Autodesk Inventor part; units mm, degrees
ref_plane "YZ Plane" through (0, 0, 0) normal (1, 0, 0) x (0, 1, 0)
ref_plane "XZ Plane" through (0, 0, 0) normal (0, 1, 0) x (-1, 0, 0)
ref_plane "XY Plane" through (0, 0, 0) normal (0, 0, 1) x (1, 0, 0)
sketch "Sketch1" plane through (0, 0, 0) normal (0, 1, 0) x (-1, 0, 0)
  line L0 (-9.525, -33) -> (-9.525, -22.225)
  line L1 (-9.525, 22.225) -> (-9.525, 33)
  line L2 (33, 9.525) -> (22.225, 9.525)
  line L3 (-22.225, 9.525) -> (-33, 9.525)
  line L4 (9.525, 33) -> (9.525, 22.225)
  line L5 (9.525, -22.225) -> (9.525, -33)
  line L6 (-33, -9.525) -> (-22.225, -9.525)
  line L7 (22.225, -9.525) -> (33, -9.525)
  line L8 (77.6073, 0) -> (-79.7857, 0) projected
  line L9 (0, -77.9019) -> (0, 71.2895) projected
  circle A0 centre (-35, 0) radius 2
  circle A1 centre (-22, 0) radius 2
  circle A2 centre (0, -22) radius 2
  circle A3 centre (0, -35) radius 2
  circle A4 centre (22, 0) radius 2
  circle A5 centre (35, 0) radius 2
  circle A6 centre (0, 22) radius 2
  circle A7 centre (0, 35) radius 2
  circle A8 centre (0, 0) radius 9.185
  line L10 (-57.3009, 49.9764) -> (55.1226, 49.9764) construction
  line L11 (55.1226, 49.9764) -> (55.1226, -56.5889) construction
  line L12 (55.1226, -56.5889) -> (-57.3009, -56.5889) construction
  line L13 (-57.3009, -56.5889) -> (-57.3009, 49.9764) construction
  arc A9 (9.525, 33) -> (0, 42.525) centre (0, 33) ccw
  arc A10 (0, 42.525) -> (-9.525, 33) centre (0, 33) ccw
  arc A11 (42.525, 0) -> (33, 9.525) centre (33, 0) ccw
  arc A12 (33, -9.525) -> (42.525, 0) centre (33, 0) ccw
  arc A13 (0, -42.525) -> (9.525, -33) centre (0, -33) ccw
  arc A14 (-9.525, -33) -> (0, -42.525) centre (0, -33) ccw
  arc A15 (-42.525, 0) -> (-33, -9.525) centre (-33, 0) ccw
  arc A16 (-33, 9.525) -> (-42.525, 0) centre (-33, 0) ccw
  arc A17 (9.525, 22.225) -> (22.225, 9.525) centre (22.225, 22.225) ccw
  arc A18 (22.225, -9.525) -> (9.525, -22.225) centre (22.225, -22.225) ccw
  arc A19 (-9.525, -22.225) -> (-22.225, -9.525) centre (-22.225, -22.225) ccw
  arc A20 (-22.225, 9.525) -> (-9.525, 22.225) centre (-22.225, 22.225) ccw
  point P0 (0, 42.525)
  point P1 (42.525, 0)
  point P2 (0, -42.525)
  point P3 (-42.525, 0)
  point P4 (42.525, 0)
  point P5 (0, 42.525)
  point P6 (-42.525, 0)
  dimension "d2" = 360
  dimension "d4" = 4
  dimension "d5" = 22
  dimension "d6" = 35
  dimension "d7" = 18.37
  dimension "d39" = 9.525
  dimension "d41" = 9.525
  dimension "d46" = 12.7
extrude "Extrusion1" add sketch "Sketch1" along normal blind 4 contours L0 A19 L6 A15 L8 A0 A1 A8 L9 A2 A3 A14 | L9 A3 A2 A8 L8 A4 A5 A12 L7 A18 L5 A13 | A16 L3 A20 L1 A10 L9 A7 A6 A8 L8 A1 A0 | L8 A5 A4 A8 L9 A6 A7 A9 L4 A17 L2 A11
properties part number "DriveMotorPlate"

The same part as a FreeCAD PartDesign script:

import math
import FreeCAD as App
import Part
import Sketcher
from FreeCAD import Vector
Q = App.Units.Quantity

doc = App.newDocument("Part")
params = doc.addObject("Spreadsheet::Sheet", "Params")
for row, (alias, value) in enumerate([
    ("sketch1_radius", "0.5 in"),
    ("sketch1_radius2", "0.375 in"),
    ("pad1_length", "4 mm"),
], start=1):
    params.set(f"A{row}", alias)
    params.set(f"B{row}", "=" + value)
    params.setAlias(f"B{row}", alias)

body = doc.addObject("PartDesign::Body", "Body")

# Sketch on XZ plane
sketch1 = body.newObject("Sketcher::SketchObject", "Sketch")
sketch1.AttachmentSupport = (doc.getObject("XZ_Plane"), [""])
sketch1.MapMode = "FlatFace"
sketch1.addGeometry(Part.LineSegment(Vector(9.5, -22.2, 0), Vector(9.5, -33, 0)), False)
sketch1.addGeometry(Part.ArcOfCircle(Part.Circle(Vector(0, -33, 0), Vector(0, 0, 1), 9.5), math.radians(180), math.radians(360)), False)
sketch1.addGeometry(Part.LineSegment(Vector(-9.5, -33, 0), Vector(-9.5, -22.2, 0)), False)
sketch1.addGeometry(Part.ArcOfCircle(Part.Circle(Vector(-22.2, -22.2, 0), Vector(0, 0, 1), 12.7), math.radians(0), math.radians(90)), False)
sketch1.addGeometry(Part.LineSegment(Vector(-22.2, -9.5, 0), Vector(-33, -9.5, 0)), False)
sketch1.addGeometry(Part.ArcOfCircle(Part.Circle(Vector(-33, 0, 0), Vector(0, 0, 1), 9.5), math.radians(90), math.radians(270)), False)
sketch1.addGeometry(Part.LineSegment(Vector(-33, 9.5, 0), Vector(-22.2, 9.5, 0)), False)
sketch1.addGeometry(Part.ArcOfCircle(Part.Circle(Vector(-22.2, 22.2, 0), Vector(0, 0, 1), 12.7), math.radians(-90), math.radians(0)), False)
sketch1.addGeometry(Part.LineSegment(Vector(-9.5, 22.2, 0), Vector(-9.5, 33, 0)), False)
sketch1.addGeometry(Part.ArcOfCircle(Part.Circle(Vector(0, 33, 0), Vector(0, 0, 1), 9.5), math.radians(0), math.radians(180)), False)
sketch1.addGeometry(Part.LineSegment(Vector(9.5, 33, 0), Vector(9.5, 22.2, 0)), False)
sketch1.addGeometry(Part.ArcOfCircle(Part.Circle(Vector(22.2, 22.2, 0), Vector(0, 0, 1), 12.7), math.radians(180), math.radians(270)), False)
sketch1.addGeometry(Part.LineSegment(Vector(22.2, 9.5, 0), Vector(33, 9.5, 0)), False)
sketch1.addGeometry(Part.ArcOfCircle(Part.Circle(Vector(33, 0, 0), Vector(0, 0, 1), 9.5), math.radians(-90), math.radians(90)), False)
sketch1.addGeometry(Part.LineSegment(Vector(33, -9.5, 0), Vector(22.2, -9.5, 0)), False)
sketch1.addGeometry(Part.ArcOfCircle(Part.Circle(Vector(22.2, -22.2, 0), Vector(0, 0, 1), 12.7), math.radians(90), math.radians(180)), False)
sketch1.addGeometry(Part.Circle(Vector(35, 0, 0), Vector(0, 0, 1), 2), False)
sketch1.addGeometry(Part.Circle(Vector(22, 0, 0), Vector(0, 0, 1), 2), False)
sketch1.addGeometry(Part.Circle(Vector(0, 0, 0), Vector(0, 0, 1), 9.2), False)
sketch1.addGeometry(Part.Circle(Vector(0, -22, 0), Vector(0, 0, 1), 2), False)
sketch1.addGeometry(Part.Circle(Vector(0, -35, 0), Vector(0, 0, 1), 2), False)
sketch1.addGeometry(Part.Circle(Vector(0, 35, 0), Vector(0, 0, 1), 2), False)
sketch1.addGeometry(Part.Circle(Vector(0, 22, 0), Vector(0, 0, 1), 2), False)
sketch1.addGeometry(Part.Circle(Vector(-22, 0, 0), Vector(0, 0, 1), 2), False)
sketch1.addGeometry(Part.Circle(Vector(-35, 0, 0), Vector(0, 0, 1), 2), False)
sketch1.addConstraint(Sketcher.Constraint("Tangent", 0, 2, 1, 2))
sketch1.addConstraint(Sketcher.Constraint("Tangent", 1, 1, 2, 1))
sketch1.addConstraint(Sketcher.Constraint("Tangent", 2, 2, 3, 1))
sketch1.addConstraint(Sketcher.Constraint("Tangent", 3, 2, 4, 1))
sketch1.addConstraint(Sketcher.Constraint("Tangent", 4, 2, 5, 2))
sketch1.addConstraint(Sketcher.Constraint("Tangent", 5, 1, 6, 1))
sketch1.addConstraint(Sketcher.Constraint("Tangent", 6, 2, 7, 1))
sketch1.addConstraint(Sketcher.Constraint("Tangent", 7, 2, 8, 1))
sketch1.addConstraint(Sketcher.Constraint("Tangent", 8, 2, 9, 2))
sketch1.addConstraint(Sketcher.Constraint("Tangent", 9, 1, 10, 1))
sketch1.addConstraint(Sketcher.Constraint("Tangent", 10, 2, 11, 1))
sketch1.addConstraint(Sketcher.Constraint("Tangent", 11, 2, 12, 1))
sketch1.addConstraint(Sketcher.Constraint("Tangent", 12, 2, 13, 2))
sketch1.addConstraint(Sketcher.Constraint("Tangent", 13, 1, 14, 1))
sketch1.addConstraint(Sketcher.Constraint("Tangent", 14, 2, 15, 1))
sketch1.addConstraint(Sketcher.Constraint("Tangent", 15, 2, 0, 1))
sketch1.addConstraint(Sketcher.Constraint("Vertical", 0))
sketch1.addConstraint(Sketcher.Constraint("Vertical", 2))
sketch1.addConstraint(Sketcher.Constraint("Horizontal", 4))
sketch1.addConstraint(Sketcher.Constraint("Horizontal", 6))
sketch1.addConstraint(Sketcher.Constraint("Vertical", 8))
sketch1.addConstraint(Sketcher.Constraint("Vertical", 10))
sketch1.addConstraint(Sketcher.Constraint("Horizontal", 12))
sketch1.addConstraint(Sketcher.Constraint("Horizontal", 14))
sketch1.addConstraint(Sketcher.Constraint("Coincident", 18, 3, -1, 1))
sketch1.addConstraint(Sketcher.Constraint("Equal", 1, 5))
sketch1.addConstraint(Sketcher.Constraint("Equal", 3, 7))
sketch1.addConstraint(Sketcher.Constraint("Equal", 5, 9))
sketch1.addConstraint(Sketcher.Constraint("Equal", 7, 11))
sketch1.addConstraint(Sketcher.Constraint("Equal", 9, 13))
sketch1.addConstraint(Sketcher.Constraint("Equal", 11, 15))
sketch1.addConstraint(Sketcher.Constraint("Equal", 16, 17))
sketch1.addConstraint(Sketcher.Constraint("Equal", 17, 19))
sketch1.addConstraint(Sketcher.Constraint("Equal", 19, 20))
sketch1.addConstraint(Sketcher.Constraint("Equal", 20, 21))
sketch1.addConstraint(Sketcher.Constraint("Equal", 21, 22))
sketch1.addConstraint(Sketcher.Constraint("Equal", 22, 23))
sketch1.addConstraint(Sketcher.Constraint("Equal", 23, 24))
sketch1.addConstraint(Sketcher.Constraint("Symmetric", 1, 3, 9, 3, -1, 1))
sketch1.addConstraint(Sketcher.Constraint("Symmetric", 5, 3, 13, 3, -1, 1))
sketch1.addConstraint(Sketcher.Constraint("Symmetric", 20, 3, 21, 3, -1, 1))
sketch1.addConstraint(Sketcher.Constraint("Symmetric", 19, 3, 22, 3, -1, 1))
sketch1.addConstraint(Sketcher.Constraint("Symmetric", 17, 3, 23, 3, -1, 1))
sketch1.addConstraint(Sketcher.Constraint("Symmetric", 16, 3, 24, 3, -1, 1))
sketch1.addConstraint(Sketcher.Constraint("Symmetric", 7, 3, 11, 3, -2))
sketch1.addConstraint(Sketcher.Constraint("PointOnObject", 16, 3, -1))
sketch1.addConstraint(Sketcher.Constraint("PointOnObject", 17, 3, -1))
sketch1.addConstraint(Sketcher.Constraint("PointOnObject", 19, 3, -2))
sketch1.addConstraint(Sketcher.Constraint("PointOnObject", 20, 3, -2))
sketch1.addConstraint(Sketcher.Constraint("Equal", 14, 0))
sketch1.addConstraint(Sketcher.Constraint("Radius", 3, Q("0.5 in")))
sketch1.addConstraint(Sketcher.Constraint("Radius", 1, Q("0.375 in")))
sketch1.addConstraint(Sketcher.Constraint("Diameter", 16, Q("4 mm")))
sketch1.addConstraint(Sketcher.Constraint("Diameter", 18, Q("18.37 mm")))
sketch1.addConstraint(Sketcher.Constraint("DistanceX", -1, 1, 16, 3, Q("35 mm")))
sketch1.addConstraint(Sketcher.Constraint("DistanceX", -1, 1, 17, 3, Q("22 mm")))
sketch1.addConstraint(Sketcher.Constraint("DistanceY", 19, 3, -1, 1, Q("22 mm")))
sketch1.addConstraint(Sketcher.Constraint("DistanceY", 20, 3, -1, 1, Q("35 mm")))
sketch1.addConstraint(Sketcher.Constraint("DistanceX", 4, 2, 4, 1, Q("10.775 mm")))
sketch1.setExpression("Constraints[50]", "Params.sketch1_radius")
sketch1.setExpression("Constraints[51]", "Params.sketch1_radius2")
pad1 = body.newObject("PartDesign::Pad", "Pad")
pad1.Profile = sketch1
pad1.setExpression("Length", "Params.pad1_length")
pad1.Reversed = True

doc.recompute()
